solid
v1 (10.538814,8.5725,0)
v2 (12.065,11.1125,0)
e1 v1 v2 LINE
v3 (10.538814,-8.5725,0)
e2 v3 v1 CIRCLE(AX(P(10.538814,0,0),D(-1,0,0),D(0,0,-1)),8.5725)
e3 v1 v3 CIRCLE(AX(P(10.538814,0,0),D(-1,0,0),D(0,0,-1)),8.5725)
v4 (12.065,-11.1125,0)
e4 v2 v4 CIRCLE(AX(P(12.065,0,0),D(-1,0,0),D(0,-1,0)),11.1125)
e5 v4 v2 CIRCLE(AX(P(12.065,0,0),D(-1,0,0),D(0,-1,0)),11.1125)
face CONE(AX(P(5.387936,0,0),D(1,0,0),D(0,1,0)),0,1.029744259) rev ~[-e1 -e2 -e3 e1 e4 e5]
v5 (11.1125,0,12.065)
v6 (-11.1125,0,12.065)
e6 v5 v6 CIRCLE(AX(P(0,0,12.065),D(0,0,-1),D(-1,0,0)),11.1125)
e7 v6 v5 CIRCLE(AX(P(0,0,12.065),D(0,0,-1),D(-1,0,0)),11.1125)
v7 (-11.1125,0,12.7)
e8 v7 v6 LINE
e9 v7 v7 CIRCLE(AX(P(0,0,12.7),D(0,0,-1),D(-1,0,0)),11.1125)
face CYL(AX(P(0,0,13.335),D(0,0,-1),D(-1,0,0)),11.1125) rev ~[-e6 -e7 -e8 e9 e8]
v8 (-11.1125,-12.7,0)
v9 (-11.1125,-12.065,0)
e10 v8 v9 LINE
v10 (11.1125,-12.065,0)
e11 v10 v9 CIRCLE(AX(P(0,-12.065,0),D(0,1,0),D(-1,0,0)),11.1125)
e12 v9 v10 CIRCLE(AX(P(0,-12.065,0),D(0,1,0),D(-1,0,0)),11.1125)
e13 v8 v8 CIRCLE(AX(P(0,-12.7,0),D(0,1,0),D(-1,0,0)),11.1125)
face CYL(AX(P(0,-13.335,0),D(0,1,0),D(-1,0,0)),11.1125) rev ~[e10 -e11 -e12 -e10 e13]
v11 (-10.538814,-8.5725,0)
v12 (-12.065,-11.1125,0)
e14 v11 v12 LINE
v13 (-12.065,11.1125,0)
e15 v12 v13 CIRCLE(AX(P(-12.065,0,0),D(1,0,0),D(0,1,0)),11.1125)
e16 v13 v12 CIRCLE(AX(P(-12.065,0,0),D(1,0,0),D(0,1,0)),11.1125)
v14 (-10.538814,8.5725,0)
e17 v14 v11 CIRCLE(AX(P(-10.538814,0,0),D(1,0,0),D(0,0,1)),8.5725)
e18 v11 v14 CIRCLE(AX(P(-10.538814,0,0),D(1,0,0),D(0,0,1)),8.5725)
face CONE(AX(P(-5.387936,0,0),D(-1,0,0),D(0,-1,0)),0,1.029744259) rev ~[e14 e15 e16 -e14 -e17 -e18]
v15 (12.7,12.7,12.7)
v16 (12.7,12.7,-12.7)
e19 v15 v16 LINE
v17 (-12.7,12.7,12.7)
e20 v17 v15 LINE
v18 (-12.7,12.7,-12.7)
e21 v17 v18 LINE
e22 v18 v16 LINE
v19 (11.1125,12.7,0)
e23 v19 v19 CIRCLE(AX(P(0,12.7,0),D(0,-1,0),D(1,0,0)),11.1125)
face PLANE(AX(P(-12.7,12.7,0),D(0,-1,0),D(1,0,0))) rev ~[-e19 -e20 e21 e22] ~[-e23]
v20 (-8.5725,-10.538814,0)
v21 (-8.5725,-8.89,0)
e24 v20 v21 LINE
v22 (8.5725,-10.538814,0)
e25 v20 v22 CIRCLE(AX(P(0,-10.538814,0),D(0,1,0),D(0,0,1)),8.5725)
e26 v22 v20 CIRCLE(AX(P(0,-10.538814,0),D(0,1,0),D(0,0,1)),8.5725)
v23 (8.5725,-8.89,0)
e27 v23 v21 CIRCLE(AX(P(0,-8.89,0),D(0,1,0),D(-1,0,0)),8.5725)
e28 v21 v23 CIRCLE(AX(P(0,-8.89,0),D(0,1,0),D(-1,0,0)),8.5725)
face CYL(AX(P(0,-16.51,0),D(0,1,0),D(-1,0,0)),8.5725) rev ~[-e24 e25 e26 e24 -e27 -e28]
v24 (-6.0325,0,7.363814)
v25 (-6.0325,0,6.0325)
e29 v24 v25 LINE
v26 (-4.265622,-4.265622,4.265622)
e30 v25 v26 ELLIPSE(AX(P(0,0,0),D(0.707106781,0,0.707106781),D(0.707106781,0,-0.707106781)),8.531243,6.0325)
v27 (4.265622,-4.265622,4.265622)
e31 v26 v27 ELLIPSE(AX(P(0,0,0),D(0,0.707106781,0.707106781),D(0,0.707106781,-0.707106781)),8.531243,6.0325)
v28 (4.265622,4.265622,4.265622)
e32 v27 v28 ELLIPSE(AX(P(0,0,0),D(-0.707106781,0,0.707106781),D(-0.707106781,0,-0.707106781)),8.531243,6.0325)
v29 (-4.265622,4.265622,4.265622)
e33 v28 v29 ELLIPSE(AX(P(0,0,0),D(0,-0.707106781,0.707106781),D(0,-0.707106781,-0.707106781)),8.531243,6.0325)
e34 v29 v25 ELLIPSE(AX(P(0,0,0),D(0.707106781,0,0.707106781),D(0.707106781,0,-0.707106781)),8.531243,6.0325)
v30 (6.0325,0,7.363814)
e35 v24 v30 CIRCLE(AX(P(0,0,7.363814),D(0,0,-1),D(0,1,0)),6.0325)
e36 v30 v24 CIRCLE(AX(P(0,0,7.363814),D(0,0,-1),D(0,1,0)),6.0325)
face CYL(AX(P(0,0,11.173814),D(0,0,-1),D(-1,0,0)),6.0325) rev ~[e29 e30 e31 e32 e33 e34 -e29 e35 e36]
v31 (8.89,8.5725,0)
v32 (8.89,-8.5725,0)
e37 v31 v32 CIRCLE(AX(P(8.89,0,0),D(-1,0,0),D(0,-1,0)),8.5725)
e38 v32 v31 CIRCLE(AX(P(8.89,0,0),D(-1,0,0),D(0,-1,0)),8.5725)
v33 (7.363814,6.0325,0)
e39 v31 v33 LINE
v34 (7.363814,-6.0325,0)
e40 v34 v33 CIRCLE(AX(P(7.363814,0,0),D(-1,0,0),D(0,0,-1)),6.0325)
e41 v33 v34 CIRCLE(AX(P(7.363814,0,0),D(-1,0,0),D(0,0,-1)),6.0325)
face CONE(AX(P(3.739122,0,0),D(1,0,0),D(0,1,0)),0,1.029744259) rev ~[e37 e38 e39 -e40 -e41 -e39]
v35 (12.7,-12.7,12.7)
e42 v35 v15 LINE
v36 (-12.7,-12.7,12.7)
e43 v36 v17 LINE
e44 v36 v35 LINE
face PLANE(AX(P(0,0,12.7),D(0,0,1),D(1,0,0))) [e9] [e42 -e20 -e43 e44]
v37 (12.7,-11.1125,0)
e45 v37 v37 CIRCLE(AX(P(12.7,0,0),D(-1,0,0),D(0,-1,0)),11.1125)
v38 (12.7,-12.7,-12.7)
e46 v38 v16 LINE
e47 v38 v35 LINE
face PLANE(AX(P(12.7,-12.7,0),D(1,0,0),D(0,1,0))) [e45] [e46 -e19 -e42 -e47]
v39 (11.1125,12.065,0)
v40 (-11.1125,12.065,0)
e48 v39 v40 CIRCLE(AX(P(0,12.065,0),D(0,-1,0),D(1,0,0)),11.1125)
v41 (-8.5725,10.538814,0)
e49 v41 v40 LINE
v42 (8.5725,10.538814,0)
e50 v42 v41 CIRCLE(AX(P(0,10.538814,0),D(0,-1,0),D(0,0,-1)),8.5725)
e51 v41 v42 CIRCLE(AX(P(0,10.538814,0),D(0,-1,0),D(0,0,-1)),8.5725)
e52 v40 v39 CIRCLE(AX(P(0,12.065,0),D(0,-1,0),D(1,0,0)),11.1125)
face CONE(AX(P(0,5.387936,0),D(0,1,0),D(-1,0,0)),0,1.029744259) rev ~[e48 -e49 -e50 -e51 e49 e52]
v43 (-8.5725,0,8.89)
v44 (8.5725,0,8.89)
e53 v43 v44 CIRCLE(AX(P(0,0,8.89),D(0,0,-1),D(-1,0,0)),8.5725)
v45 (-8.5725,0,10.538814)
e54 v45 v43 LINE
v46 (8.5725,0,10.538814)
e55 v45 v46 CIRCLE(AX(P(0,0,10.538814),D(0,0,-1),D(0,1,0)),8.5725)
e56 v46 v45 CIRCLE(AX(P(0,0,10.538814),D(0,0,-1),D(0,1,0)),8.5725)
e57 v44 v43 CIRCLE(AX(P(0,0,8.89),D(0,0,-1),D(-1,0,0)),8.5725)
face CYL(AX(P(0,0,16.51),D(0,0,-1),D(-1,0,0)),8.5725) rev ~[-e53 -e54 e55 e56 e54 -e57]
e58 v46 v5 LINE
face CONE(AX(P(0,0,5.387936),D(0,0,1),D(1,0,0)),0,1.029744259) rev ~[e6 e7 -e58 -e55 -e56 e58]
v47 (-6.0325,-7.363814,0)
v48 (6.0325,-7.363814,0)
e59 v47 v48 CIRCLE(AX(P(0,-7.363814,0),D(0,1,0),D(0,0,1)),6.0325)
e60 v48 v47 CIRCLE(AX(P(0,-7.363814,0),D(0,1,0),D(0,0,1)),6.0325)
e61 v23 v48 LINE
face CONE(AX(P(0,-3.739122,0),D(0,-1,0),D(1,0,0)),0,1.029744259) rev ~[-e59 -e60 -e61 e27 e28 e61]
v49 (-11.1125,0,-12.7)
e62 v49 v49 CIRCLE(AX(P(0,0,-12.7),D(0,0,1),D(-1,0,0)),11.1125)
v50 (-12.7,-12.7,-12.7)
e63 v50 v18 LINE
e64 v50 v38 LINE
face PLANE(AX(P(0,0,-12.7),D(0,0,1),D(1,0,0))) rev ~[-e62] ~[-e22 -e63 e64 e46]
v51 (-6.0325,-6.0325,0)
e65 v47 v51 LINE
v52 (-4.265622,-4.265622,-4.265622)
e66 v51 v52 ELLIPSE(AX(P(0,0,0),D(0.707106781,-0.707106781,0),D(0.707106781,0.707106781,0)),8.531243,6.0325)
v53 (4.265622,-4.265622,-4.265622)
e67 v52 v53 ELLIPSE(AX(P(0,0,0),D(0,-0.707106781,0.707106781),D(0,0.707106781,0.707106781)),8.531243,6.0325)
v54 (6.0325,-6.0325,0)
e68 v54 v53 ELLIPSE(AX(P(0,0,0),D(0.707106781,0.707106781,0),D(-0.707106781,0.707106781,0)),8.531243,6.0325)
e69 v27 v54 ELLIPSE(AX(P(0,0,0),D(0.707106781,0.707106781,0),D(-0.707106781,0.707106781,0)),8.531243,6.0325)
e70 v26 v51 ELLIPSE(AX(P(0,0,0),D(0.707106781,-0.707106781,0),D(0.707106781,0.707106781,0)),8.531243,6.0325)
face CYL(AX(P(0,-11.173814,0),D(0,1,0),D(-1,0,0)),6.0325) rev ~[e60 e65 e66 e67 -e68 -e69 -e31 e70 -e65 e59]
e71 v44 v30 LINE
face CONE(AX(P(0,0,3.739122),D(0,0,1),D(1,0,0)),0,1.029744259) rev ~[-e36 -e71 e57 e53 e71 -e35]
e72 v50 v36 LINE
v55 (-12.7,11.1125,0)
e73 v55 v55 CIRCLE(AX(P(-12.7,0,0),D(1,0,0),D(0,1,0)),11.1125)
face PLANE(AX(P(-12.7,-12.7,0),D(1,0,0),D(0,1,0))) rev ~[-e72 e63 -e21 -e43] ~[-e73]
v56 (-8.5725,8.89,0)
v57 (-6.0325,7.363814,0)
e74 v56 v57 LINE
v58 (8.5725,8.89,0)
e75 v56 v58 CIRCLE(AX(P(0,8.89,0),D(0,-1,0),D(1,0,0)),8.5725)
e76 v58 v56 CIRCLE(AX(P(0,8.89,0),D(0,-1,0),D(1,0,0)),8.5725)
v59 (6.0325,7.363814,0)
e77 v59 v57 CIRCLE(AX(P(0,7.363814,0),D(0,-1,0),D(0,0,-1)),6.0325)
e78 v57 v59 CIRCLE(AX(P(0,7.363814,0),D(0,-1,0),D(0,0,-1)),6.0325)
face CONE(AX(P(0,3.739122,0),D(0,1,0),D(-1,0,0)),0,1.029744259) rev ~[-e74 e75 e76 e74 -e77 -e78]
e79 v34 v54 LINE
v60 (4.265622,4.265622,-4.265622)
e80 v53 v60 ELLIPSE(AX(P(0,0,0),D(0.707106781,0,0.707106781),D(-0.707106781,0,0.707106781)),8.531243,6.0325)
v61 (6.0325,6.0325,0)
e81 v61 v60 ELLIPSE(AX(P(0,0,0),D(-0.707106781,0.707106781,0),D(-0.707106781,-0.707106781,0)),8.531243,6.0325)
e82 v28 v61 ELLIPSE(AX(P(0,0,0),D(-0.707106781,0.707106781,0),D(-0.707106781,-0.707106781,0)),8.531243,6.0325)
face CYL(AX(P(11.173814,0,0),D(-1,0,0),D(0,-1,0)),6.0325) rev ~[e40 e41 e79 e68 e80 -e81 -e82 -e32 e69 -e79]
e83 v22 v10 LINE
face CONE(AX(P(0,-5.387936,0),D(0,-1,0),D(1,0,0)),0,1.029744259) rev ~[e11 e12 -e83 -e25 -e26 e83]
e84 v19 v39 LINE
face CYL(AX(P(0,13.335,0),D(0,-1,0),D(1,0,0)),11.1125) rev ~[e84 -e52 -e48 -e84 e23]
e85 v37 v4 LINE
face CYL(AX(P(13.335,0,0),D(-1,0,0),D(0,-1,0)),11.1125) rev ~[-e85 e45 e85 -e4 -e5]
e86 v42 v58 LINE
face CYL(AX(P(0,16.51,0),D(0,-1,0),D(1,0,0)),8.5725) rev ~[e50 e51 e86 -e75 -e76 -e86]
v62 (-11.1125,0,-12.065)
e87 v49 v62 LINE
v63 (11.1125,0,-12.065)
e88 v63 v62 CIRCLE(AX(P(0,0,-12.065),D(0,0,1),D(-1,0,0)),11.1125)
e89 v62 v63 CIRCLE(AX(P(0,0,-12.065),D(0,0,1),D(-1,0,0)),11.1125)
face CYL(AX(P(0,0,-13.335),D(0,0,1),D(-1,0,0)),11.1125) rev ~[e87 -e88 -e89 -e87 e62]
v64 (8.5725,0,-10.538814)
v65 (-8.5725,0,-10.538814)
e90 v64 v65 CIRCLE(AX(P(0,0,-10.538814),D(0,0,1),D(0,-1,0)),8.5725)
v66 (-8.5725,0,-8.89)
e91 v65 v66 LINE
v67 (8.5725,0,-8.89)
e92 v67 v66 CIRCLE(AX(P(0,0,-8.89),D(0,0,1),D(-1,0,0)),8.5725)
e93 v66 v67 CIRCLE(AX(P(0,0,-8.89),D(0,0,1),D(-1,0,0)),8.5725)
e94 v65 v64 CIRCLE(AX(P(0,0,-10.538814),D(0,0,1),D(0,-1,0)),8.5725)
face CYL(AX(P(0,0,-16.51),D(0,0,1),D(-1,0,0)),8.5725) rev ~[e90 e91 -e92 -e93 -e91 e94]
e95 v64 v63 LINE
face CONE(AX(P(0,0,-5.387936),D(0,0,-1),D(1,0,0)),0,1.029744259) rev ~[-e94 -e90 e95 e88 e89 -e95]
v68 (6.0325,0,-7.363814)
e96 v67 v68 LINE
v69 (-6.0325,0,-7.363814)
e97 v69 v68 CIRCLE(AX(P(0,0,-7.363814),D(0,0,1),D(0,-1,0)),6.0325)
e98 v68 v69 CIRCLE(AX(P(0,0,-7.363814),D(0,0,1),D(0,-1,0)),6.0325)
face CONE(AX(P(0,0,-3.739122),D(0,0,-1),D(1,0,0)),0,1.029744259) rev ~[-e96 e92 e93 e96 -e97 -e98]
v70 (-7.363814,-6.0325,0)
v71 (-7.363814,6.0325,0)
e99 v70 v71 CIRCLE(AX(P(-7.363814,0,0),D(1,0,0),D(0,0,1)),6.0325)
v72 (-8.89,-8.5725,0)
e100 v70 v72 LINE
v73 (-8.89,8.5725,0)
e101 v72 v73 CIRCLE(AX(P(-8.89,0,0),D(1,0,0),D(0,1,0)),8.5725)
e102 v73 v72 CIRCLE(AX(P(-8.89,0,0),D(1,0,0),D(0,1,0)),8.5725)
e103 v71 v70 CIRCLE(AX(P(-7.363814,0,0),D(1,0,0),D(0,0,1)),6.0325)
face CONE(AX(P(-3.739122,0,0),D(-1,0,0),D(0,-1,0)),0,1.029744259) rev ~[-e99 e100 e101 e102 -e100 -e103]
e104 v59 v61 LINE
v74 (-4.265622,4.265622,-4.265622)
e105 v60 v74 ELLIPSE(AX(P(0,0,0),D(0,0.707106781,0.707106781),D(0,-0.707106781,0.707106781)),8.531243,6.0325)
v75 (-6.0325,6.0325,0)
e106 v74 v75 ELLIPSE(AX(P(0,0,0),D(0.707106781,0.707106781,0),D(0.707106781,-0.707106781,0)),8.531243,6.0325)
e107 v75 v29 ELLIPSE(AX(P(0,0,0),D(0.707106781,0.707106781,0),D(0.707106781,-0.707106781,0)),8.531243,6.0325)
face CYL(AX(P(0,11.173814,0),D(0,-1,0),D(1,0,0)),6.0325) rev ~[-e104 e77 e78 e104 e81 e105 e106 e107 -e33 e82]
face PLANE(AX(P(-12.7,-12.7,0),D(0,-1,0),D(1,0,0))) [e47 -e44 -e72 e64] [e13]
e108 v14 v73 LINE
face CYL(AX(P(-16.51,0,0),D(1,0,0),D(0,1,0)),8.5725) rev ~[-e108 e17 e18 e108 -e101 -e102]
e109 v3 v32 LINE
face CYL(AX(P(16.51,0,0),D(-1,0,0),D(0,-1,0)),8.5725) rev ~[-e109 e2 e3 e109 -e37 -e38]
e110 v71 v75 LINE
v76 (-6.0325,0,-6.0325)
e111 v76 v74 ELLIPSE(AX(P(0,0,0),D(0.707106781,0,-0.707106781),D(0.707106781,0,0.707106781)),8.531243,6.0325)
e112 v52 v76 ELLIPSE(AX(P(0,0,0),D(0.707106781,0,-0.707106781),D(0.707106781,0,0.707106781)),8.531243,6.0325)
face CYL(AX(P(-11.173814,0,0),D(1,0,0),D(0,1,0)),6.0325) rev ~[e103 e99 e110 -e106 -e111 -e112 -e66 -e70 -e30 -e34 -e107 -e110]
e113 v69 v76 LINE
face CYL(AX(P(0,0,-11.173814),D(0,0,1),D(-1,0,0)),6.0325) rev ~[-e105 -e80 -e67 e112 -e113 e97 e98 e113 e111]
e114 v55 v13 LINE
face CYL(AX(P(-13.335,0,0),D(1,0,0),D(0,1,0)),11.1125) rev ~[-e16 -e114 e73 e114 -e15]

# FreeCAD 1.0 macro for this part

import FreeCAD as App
import Part
import Sketcher

V = App.Vector
Q = App.Units.Quantity

doc = App.newDocument("Part")
body = doc.addObject("PartDesign::Body", "Body")

sketch1 = body.newObject("Sketcher::SketchObject", "Sketch")
sketch1.AttachmentSupport = (doc.getObject("XY_Plane"), [""])
sketch1.MapMode = "FlatFace"
sketch1.addGeometry([
    Part.LineSegment(V(-13, 13, 0), V(-13, -13, 0)),
    Part.LineSegment(V(-13, -13, 0), V(13, -13, 0)),
    Part.LineSegment(V(13, -13, 0), V(13, 13, 0)),
    Part.LineSegment(V(13, 13, 0), V(-13, 13, 0)),
], False)
sketch1.addConstraint([
    Sketcher.Constraint("Coincident", 0, 2, 1, 1),
    Sketcher.Constraint("Coincident", 1, 2, 2, 1),
    Sketcher.Constraint("Coincident", 2, 2, 3, 1),
    Sketcher.Constraint("Coincident", 3, 2, 0, 1),
    Sketcher.Constraint("Vertical", 0),
    Sketcher.Constraint("Horizontal", 1),
    Sketcher.Constraint("Vertical", 2),
    Sketcher.Constraint("Horizontal", 3),
    Sketcher.Constraint("Symmetric", 0, 2, 2, 2, -1, 1),
    Sketcher.Constraint("Equal", 3, 0),
    Sketcher.Constraint("DistanceX", 1, 1, 1, 2, Q("1 in")),
])
pad1 = body.newObject("PartDesign::Pad", "Pad")
pad1.Profile = sketch1
pad1.Length = Q("1 in")
pad1.Midplane = True

sketch2 = body.newObject("Sketcher::SketchObject", "Sketch001")
sketch2.AttachmentSupport = (doc.getObject("XY_Plane"), [""])
sketch2.MapMode = "FlatFace"
sketch2.AttachmentOffset = App.Placement(V(0, 0, 0.5 * 25.4), App.Rotation())
sketch2.addGeometry(Part.Circle(V(0, 0, 0), V(0, 0, 1), 1.6), False)
sketch2.addConstraint([
    Sketcher.Constraint("Coincident", 0, 3, -1, 1),
    Sketcher.Constraint("Diameter", 0, Q("0.125 in")),
])
doc.recompute()
hole = body.newObject("PartDesign::Hole", "Hole")
hole.Profile = sketch2
hole.ThreadType = "None"
hole.Diameter = Q("0.125 in")
hole.DepthType = "ThroughAll"

sketch3 = body.newObject("Sketcher::SketchObject", "Sketch002")
sketch3.AttachmentSupport = (doc.getObject("YZ_Plane"), [""])
sketch3.MapMode = "FlatFace"
sketch3.AttachmentOffset = App.Placement(V(0, 0, -0.5 * 25.4), App.Rotation())
sketch3.addGeometry(Part.Circle(V(0, 0, 0), V(0, 0, 1), 1.6), False)
sketch3.addConstraint([
    Sketcher.Constraint("Coincident", 0, 3, -1, 1),
    Sketcher.Constraint("Diameter", 0, Q("0.125 in")),
])
doc.recompute()
hole2 = body.newObject("PartDesign::Hole", "Hole001")
hole2.Profile = sketch3
hole2.ThreadType = "None"
hole2.Diameter = Q("0.125 in")
hole2.DepthType = "ThroughAll"
hole2.Reversed = True

sketch4 = body.newObject("Sketcher::SketchObject", "Sketch003")
sketch4.AttachmentSupport = (doc.getObject("XZ_Plane"), [""])
sketch4.MapMode = "FlatFace"
sketch4.AttachmentOffset = App.Placement(V(0, 0, -0.5 * 25.4), App.Rotation())
sketch4.addGeometry(Part.Circle(V(0, 0, 0), V(0, 0, 1), 1.6), False)
sketch4.addConstraint([
    Sketcher.Constraint("Coincident", 0, 3, -1, 1),
    Sketcher.Constraint("Diameter", 0, Q("0.125 in")),
])
doc.recompute()
hole3 = body.newObject("PartDesign::Hole", "Hole002")
hole3.Profile = sketch4
hole3.ThreadType = "None"
hole3.Diameter = Q("0.125 in")
hole3.DepthType = "ThroughAll"
hole3.Reversed = True

sketch5 = body.newObject("Sketcher::SketchObject", "Sketch004")
sketch5.AttachmentSupport = (doc.getObject("XY_Plane"), [""])
sketch5.MapMode = "FlatFace"
sketch5.AttachmentOffset = App.Placement(V(0, 0, -0.5 * 25.4), App.Rotation())
sketch5.addGeometry(Part.Circle(V(0, 0, 0), V(0, 0, 1), 9), False)
sketch5.addConstraint([
    Sketcher.Constraint("Coincident", 0, 3, -1, 1),
    Sketcher.Constraint("Diameter", 0, Q("0.675 in")),
])
doc.recompute()
hole4 = body.newObject("PartDesign::Hole", "Hole003")
hole4.Profile = sketch5
hole4.ThreadType = "None"
hole4.Diameter = Q("0.675 in")
hole4.DepthType = "Dimension"
hole4.Depth = Q("0.15 in")
hole4.DrillPoint = "Angled"
hole4.DrillPointAngle = 118
hole4.Reversed = True

sketch6 = body.newObject("Sketcher::SketchObject", "Sketch005")
sketch6.AttachmentSupport = (doc.getObject("XZ_Plane"), [""])
sketch6.MapMode = "FlatFace"
sketch6.AttachmentOffset = App.Placement(V(0, 0, -0.5 * 25.4), App.Rotation())
sketch6.addGeometry(Part.Circle(V(0, 0, 0), V(0, 0, 1), 9), False)
sketch6.addConstraint([
    Sketcher.Constraint("Coincident", 0, 3, -1, 1),
    Sketcher.Constraint("Diameter", 0, Q("0.675 in")),
])
doc.recompute()
hole5 = body.newObject("PartDesign::Hole", "Hole004")
hole5.Profile = sketch6
hole5.ThreadType = "None"
hole5.Diameter = Q("0.675 in")
hole5.DepthType = "Dimension"
hole5.Depth = Q("0.15 in")
hole5.DrillPoint = "Angled"
hole5.DrillPointAngle = 118
hole5.Reversed = True

sketch7 = body.newObject("Sketcher::SketchObject", "Sketch006")
sketch7.AttachmentSupport = (doc.getObject("XZ_Plane"), [""])
sketch7.MapMode = "FlatFace"
sketch7.AttachmentOffset = App.Placement(V(0, 0, 0.5 * 25.4), App.Rotation())
sketch7.addGeometry(Part.Circle(V(0, 0, 0), V(0, 0, 1), 9), False)
sketch7.addConstraint([
    Sketcher.Constraint("Coincident", 0, 3, -1, 1),
    Sketcher.Constraint("Diameter", 0, Q("0.675 in")),
])
doc.recompute()
hole6 = body.newObject("PartDesign::Hole", "Hole005")
hole6.Profile = sketch7
hole6.ThreadType = "None"
hole6.Diameter = Q("0.675 in")
hole6.DepthType = "Dimension"
hole6.Depth = Q("0.15 in")
hole6.DrillPoint = "Angled"
hole6.DrillPointAngle = 118

sketch8 = body.newObject("Sketcher::SketchObject", "Sketch007")
sketch8.AttachmentSupport = (doc.getObject("YZ_Plane"), [""])
sketch8.MapMode = "FlatFace"
sketch8.AttachmentOffset = App.Placement(V(0, 0, -0.5 * 25.4), App.Rotation())
sketch8.addGeometry(Part.Circle(V(0, 0, 0), V(0, 0, 1), 9), False)
sketch8.addConstraint([
    Sketcher.Constraint("Coincident", 0, 3, -1, 1),
    Sketcher.Constraint("Diameter", 0, Q("0.675 in")),
])
doc.recompute()
hole7 = body.newObject("PartDesign::Hole", "Hole006")
hole7.Profile = sketch8
hole7.ThreadType = "None"
hole7.Diameter = Q("0.675 in")
hole7.DepthType = "Dimension"
hole7.Depth = Q("0.15 in")
hole7.DrillPoint = "Angled"
hole7.DrillPointAngle = 118
hole7.Reversed = True

sketch9 = body.newObject("Sketcher::SketchObject", "Sketch008")
sketch9.AttachmentSupport = (doc.getObject("YZ_Plane"), [""])
sketch9.MapMode = "FlatFace"
sketch9.AttachmentOffset = App.Placement(V(0, 0, 0.5 * 25.4), App.Rotation())
sketch9.addGeometry(Part.Circle(V(0, 0, 0), V(0, 0, 1), 9), False)
sketch9.addConstraint([
    Sketcher.Constraint("Coincident", 0, 3, -1, 1),
    Sketcher.Constraint("Diameter", 0, Q("0.675 in")),
])
doc.recompute()
hole8 = body.newObject("PartDesign::Hole", "Hole007")
hole8.Profile = sketch9
hole8.ThreadType = "None"
hole8.Diameter = Q("0.675 in")
hole8.DepthType = "Dimension"
hole8.Depth = Q("0.15 in")
hole8.DrillPoint = "Angled"
hole8.DrillPointAngle = 118

sketch10 = body.newObject("Sketcher::SketchObject", "Sketch009")
sketch10.AttachmentSupport = (doc.getObject("XY_Plane"), [""])
sketch10.MapMode = "FlatFace"
sketch10.AttachmentOffset = App.Placement(V(0, 0, 0.5 * 25.4), App.Rotation())
sketch10.addGeometry(Part.Circle(V(0, 0, 0), V(0, 0, 1), 9), False)
sketch10.addConstraint([
    Sketcher.Constraint("Coincident", 0, 3, -1, 1),
    Sketcher.Constraint("Diameter", 0, Q("0.675 in")),
])
doc.recompute()
hole9 = body.newObject("PartDesign::Hole", "Hole008")
hole9.Profile = sketch10
hole9.ThreadType = "None"
hole9.Diameter = Q("0.675 in")
hole9.DepthType = "Dimension"
hole9.Depth = Q("0.15 in")
hole9.DrillPoint = "Angled"
hole9.DrillPointAngle = 118

sketch11 = body.newObject("Sketcher::SketchObject", "Sketch010")
sketch11.AttachmentSupport = (doc.getObject("YZ_Plane"), [""])
sketch11.MapMode = "FlatFace"
sketch11.AttachmentOffset = App.Placement(V(0, 0, 0.5 * 25.4), App.Rotation())
sketch11.addGeometry(Part.Circle(V(0, 0, 0), V(0, 0, 1), 11), False)
sketch11.addConstraint([
    Sketcher.Constraint("Coincident", 0, 3, -1, 1),
    Sketcher.Constraint("Diameter", 0, Q("0.875 in")),
])
doc.recompute()
hole10 = body.newObject("PartDesign::Hole", "Hole009")
hole10.Profile = sketch11
hole10.ThreadType = "None"
hole10.Diameter = Q("0.875 in")
hole10.DepthType = "Dimension"
hole10.Depth = Q("0.025 in")
hole10.DrillPoint = "Angled"
hole10.DrillPointAngle = 118

sketch12 = body.newObject("Sketcher::SketchObject", "Sketch011")
sketch12.AttachmentSupport = (doc.getObject("XY_Plane"), [""])
sketch12.MapMode = "FlatFace"
sketch12.AttachmentOffset = App.Placement(V(0, 0, 0.5 * 25.4), App.Rotation())
sketch12.addGeometry(Part.Circle(V(0, 0, 0), V(0, 0, 1), 11), False)
sketch12.addConstraint([
    Sketcher.Constraint("Coincident", 0, 3, -1, 1),
    Sketcher.Constraint("Diameter", 0, Q("0.875 in")),
])
doc.recompute()
hole11 = body.newObject("PartDesign::Hole", "Hole010")
hole11.Profile = sketch12
hole11.ThreadType = "None"
hole11.Diameter = Q("0.875 in")
hole11.DepthType = "Dimension"
hole11.Depth = Q("0.025 in")
hole11.DrillPoint = "Angled"
hole11.DrillPointAngle = 118

sketch13 = body.newObject("Sketcher::SketchObject", "Sketch012")
sketch13.AttachmentSupport = (doc.getObject("XZ_Plane"), [""])
sketch13.MapMode = "FlatFace"
sketch13.AttachmentOffset = App.Placement(V(0, 0, 0.5 * 25.4), App.Rotation())
sketch13.addGeometry(Part.Circle(V(0, 0, 0), V(0, 0, 1), 11), False)
sketch13.addConstraint([
    Sketcher.Constraint("Coincident", 0, 3, -1, 1),
    Sketcher.Constraint("Diameter", 0, Q("0.875 in")),
])
doc.recompute()
hole12 = body.newObject("PartDesign::Hole", "Hole011")
hole12.Profile = sketch13
hole12.ThreadType = "None"
hole12.Diameter = Q("0.875 in")
hole12.DepthType = "Dimension"
hole12.Depth = Q("0.025 in")
hole12.DrillPoint = "Angled"
hole12.DrillPointAngle = 118

sketch14 = body.newObject("Sketcher::SketchObject", "Sketch013")
sketch14.AttachmentSupport = (doc.getObject("XY_Plane"), [""])
sketch14.MapMode = "FlatFace"
sketch14.AttachmentOffset = App.Placement(V(0, 0, -0.5 * 25.4), App.Rotation())
sketch14.addGeometry(Part.Circle(V(0, 0, 0), V(0, 0, 1), 11), False)
sketch14.addConstraint([
    Sketcher.Constraint("Coincident", 0, 3, -1, 1),
    Sketcher.Constraint("Diameter", 0, Q("0.875 in")),
])
doc.recompute()
hole13 = body.newObject("PartDesign::Hole", "Hole012")
hole13.Profile = sketch14
hole13.ThreadType = "None"
hole13.Diameter = Q("0.875 in")
hole13.DepthType = "Dimension"
hole13.Depth = Q("0.025 in")
hole13.DrillPoint = "Angled"
hole13.DrillPointAngle = 118
hole13.Reversed = True

sketch15 = body.newObject("Sketcher::SketchObject", "Sketch014")
sketch15.AttachmentSupport = (doc.getObject("YZ_Plane"), [""])
sketch15.MapMode = "FlatFace"
sketch15.AttachmentOffset = App.Placement(V(0, 0, -0.5 * 25.4), App.Rotation())
sketch15.addGeometry(Part.Circle(V(0, 0, 0), V(0, 0, 1), 11), False)
sketch15.addConstraint([
    Sketcher.Constraint("Coincident", 0, 3, -1, 1),
    Sketcher.Constraint("Diameter", 0, Q("0.875 in")),
])
doc.recompute()
hole14 = body.newObject("PartDesign::Hole", "Hole013")
hole14.Profile = sketch15
hole14.ThreadType = "None"
hole14.Diameter = Q("0.875 in")
hole14.DepthType = "Dimension"
hole14.Depth = Q("0.025 in")
hole14.DrillPoint = "Angled"
hole14.DrillPointAngle = 118
hole14.Reversed = True

sketch16 = body.newObject("Sketcher::SketchObject", "Sketch015")
sketch16.AttachmentSupport = (doc.getObject("XZ_Plane"), [""])
sketch16.MapMode = "FlatFace"
sketch16.AttachmentOffset = App.Placement(V(0, 0, -0.5 * 25.4), App.Rotation())
sketch16.addGeometry(Part.Circle(V(0, 0, 0), V(0, 0, 1), 11), False)
sketch16.addConstraint([
    Sketcher.Constraint("Coincident", 0, 3, -1, 1),
    Sketcher.Constraint("Diameter", 0, Q("0.875 in")),
])
doc.recompute()
hole15 = body.newObject("PartDesign::Hole", "Hole014")
hole15.Profile = sketch16
hole15.ThreadType = "None"
hole15.Diameter = Q("0.875 in")
hole15.DepthType = "Dimension"
hole15.Depth = Q("0.025 in")
hole15.DrillPoint = "Angled"
hole15.DrillPointAngle = 118
hole15.Reversed = True

sketch17 = body.newObject("Sketcher::SketchObject", "Sketch016")
sketch17.AttachmentSupport = (doc.getObject("YZ_Plane"), [""])
sketch17.MapMode = "FlatFace"
sketch17.AttachmentOffset = App.Placement(V(0, 0, -0.5 * 25.4), App.Rotation())
sketch17.addGeometry(Part.Circle(V(0, 0, 0), V(0, 0, 1), 6), False)
sketch17.addConstraint([
    Sketcher.Constraint("Coincident", 0, 3, -1, 1),
    Sketcher.Constraint("Diameter", 0, Q("0.475 in")),
])
doc.recompute()
hole16 = body.newObject("PartDesign::Hole", "Hole015")
hole16.Profile = sketch17
hole16.ThreadType = "None"
hole16.Diameter = Q("0.475 in")
hole16.DepthType = "Dimension"
hole16.Depth = 5.336186
hole16.DrillPoint = "Flat"
hole16.Reversed = True

sketch18 = body.newObject("Sketcher::SketchObject", "Sketch017")
sketch18.AttachmentSupport = (doc.getObject("YZ_Plane"), [""])
sketch18.MapMode = "FlatFace"
sketch18.AttachmentOffset = App.Placement(V(0, 0, -7.363814), App.Rotation())
sketch18.addGeometry(Part.Circle(V(0, 0, 0), V(0, 0, 1), 6), False)
sketch18.addConstraint([
    Sketcher.Constraint("Coincident", 0, 3, -1, 1),
    Sketcher.Constraint("Diameter", 0, Q("0.475 in")),
])
doc.recompute()
hole17 = body.newObject("PartDesign::Hole", "Hole016")
hole17.Profile = sketch18
hole17.ThreadType = "None"
hole17.Diameter = Q("0.475 in")
hole17.DepthType = "Dimension"
hole17.Depth = Q("0.15 in")
hole17.DrillPoint = "Angled"
hole17.DrillPointAngle = 118
hole17.Reversed = True

sketch19 = body.newObject("Sketcher::SketchObject", "Sketch018")
sketch19.AttachmentSupport = (doc.getObject("XY_Plane"), [""])
sketch19.MapMode = "FlatFace"
sketch19.AttachmentOffset = App.Placement(V(0, 0, -0.5 * 25.4), App.Rotation())
sketch19.addGeometry(Part.Circle(V(0, 0, 0), V(0, 0, 1), 6), False)
sketch19.addConstraint([
    Sketcher.Constraint("Coincident", 0, 3, -1, 1),
    Sketcher.Constraint("Diameter", 0, Q("0.475 in")),
])
doc.recompute()
hole18 = body.newObject("PartDesign::Hole", "Hole017")
hole18.Profile = sketch19
hole18.ThreadType = "None"
hole18.Diameter = Q("0.475 in")
hole18.DepthType = "Dimension"
hole18.Depth = 5.336186
hole18.DrillPoint = "Flat"
hole18.Reversed = True

sketch20 = body.newObject("Sketcher::SketchObject", "Sketch019")
sketch20.AttachmentSupport = (doc.getObject("XY_Plane"), [""])
sketch20.MapMode = "FlatFace"
sketch20.AttachmentOffset = App.Placement(V(0, 0, -7.363814), App.Rotation())
sketch20.addGeometry(Part.Circle(V(0, 0, 0), V(0, 0, 1), 6), False)
sketch20.addConstraint([
    Sketcher.Constraint("Coincident", 0, 3, -1, 1),
    Sketcher.Constraint("Diameter", 0, Q("0.475 in")),
])
doc.recompute()
hole19 = body.newObject("PartDesign::Hole", "Hole018")
hole19.Profile = sketch20
hole19.ThreadType = "None"
hole19.Diameter = Q("0.475 in")
hole19.DepthType = "Dimension"
hole19.Depth = Q("0.15 in")
hole19.DrillPoint = "Angled"
hole19.DrillPointAngle = 118
hole19.Reversed = True

sketch21 = body.newObject("Sketcher::SketchObject", "Sketch020")
sketch21.AttachmentSupport = (doc.getObject("XZ_Plane"), [""])
sketch21.MapMode = "FlatFace"
sketch21.AttachmentOffset = App.Placement(V(0, 0, 0.5 * 25.4), App.Rotation())
sketch21.addGeometry(Part.Circle(V(0, 0, 0), V(0, 0, 1), 6), False)
sketch21.addConstraint([
    Sketcher.Constraint("Coincident", 0, 3, -1, 1),
    Sketcher.Constraint("Diameter", 0, Q("0.475 in")),
])
doc.recompute()
hole20 = body.newObject("PartDesign::Hole", "Hole019")
hole20.Profile = sketch21
hole20.ThreadType = "None"
hole20.Diameter = Q("0.475 in")
hole20.DepthType = "Dimension"
hole20.Depth = 5.336186
hole20.DrillPoint = "Flat"

sketch22 = body.newObject("Sketcher::SketchObject", "Sketch021")
sketch22.AttachmentSupport = (doc.getObject("XZ_Plane"), [""])
sketch22.MapMode = "FlatFace"
sketch22.AttachmentOffset = App.Placement(V(0, 0, 7.363814), App.Rotation())
sketch22.addGeometry(Part.Circle(V(0, 0, 0), V(0, 0, 1), 6), False)
sketch22.addConstraint([
    Sketcher.Constraint("Coincident", 0, 3, -1, 1),
    Sketcher.Constraint("Diameter", 0, Q("0.475 in")),
])
doc.recompute()
hole21 = body.newObject("PartDesign::Hole", "Hole020")
hole21.Profile = sketch22
hole21.ThreadType = "None"
hole21.Diameter = Q("0.475 in")
hole21.DepthType = "Dimension"
hole21.Depth = Q("0.15 in")
hole21.DrillPoint = "Angled"
hole21.DrillPointAngle = 118

sketch23 = body.newObject("Sketcher::SketchObject", "Sketch022")
sketch23.AttachmentSupport = (doc.getObject("YZ_Plane"), [""])
sketch23.MapMode = "FlatFace"
sketch23.AttachmentOffset = App.Placement(V(0, 0, 0.5 * 25.4), App.Rotation())
sketch23.addGeometry(Part.Circle(V(0, 0, 0), V(0, 0, 1), 6), False)
sketch23.addConstraint([
    Sketcher.Constraint("Coincident", 0, 3, -1, 1),
    Sketcher.Constraint("Diameter", 0, Q("0.475 in")),
])
doc.recompute()
hole22 = body.newObject("PartDesign::Hole", "Hole021")
hole22.Profile = sketch23
hole22.ThreadType = "None"
hole22.Diameter = Q("0.475 in")
hole22.DepthType = "Dimension"
hole22.Depth = 5.336186
hole22.DrillPoint = "Flat"

sketch24 = body.newObject("Sketcher::SketchObject", "Sketch023")
sketch24.AttachmentSupport = (doc.getObject("YZ_Plane"), [""])
sketch24.MapMode = "FlatFace"
sketch24.AttachmentOffset = App.Placement(V(0, 0, 7.363814), App.Rotation())
sketch24.addGeometry(Part.Circle(V(0, 0, 0), V(0, 0, 1), 6), False)
sketch24.addConstraint([
    Sketcher.Constraint("Coincident", 0, 3, -1, 1),
    Sketcher.Constraint("Diameter", 0, Q("0.475 in")),
])
doc.recompute()
hole23 = body.newObject("PartDesign::Hole", "Hole022")
hole23.Profile = sketch24
hole23.ThreadType = "None"
hole23.Diameter = Q("0.475 in")
hole23.DepthType = "Dimension"
hole23.Depth = Q("0.15 in")
hole23.DrillPoint = "Angled"
hole23.DrillPointAngle = 118

sketch25 = body.newObject("Sketcher::SketchObject", "Sketch024")
sketch25.AttachmentSupport = (doc.getObject("XZ_Plane"), [""])
sketch25.MapMode = "FlatFace"
sketch25.AttachmentOffset = App.Placement(V(0, 0, -0.5 * 25.4), App.Rotation())
sketch25.addGeometry(Part.Circle(V(0, 0, 0), V(0, 0, 1), 6), False)
sketch25.addConstraint([
    Sketcher.Constraint("Coincident", 0, 3, -1, 1),
    Sketcher.Constraint("Diameter", 0, Q("0.475 in")),
])
doc.recompute()
hole24 = body.newObject("PartDesign::Hole", "Hole023")
hole24.Profile = sketch25
hole24.ThreadType = "None"
hole24.Diameter = Q("0.475 in")
hole24.DepthType = "Dimension"
hole24.Depth = 5.336186
hole24.DrillPoint = "Flat"
hole24.Reversed = True

sketch26 = body.newObject("Sketcher::SketchObject", "Sketch025")
sketch26.AttachmentSupport = (doc.getObject("XZ_Plane"), [""])
sketch26.MapMode = "FlatFace"
sketch26.AttachmentOffset = App.Placement(V(0, 0, -7.363814), App.Rotation())
sketch26.addGeometry(Part.Circle(V(0, 0, 0), V(0, 0, 1), 6), False)
sketch26.addConstraint([
    Sketcher.Constraint("Coincident", 0, 3, -1, 1),
    Sketcher.Constraint("Diameter", 0, Q("0.475 in")),
])
doc.recompute()
hole25 = body.newObject("PartDesign::Hole", "Hole024")
hole25.Profile = sketch26
hole25.ThreadType = "None"
hole25.Diameter = Q("0.475 in")
hole25.DepthType = "Dimension"
hole25.Depth = Q("0.15 in")
hole25.DrillPoint = "Angled"
hole25.DrillPointAngle = 118
hole25.Reversed = True

sketch27 = body.newObject("Sketcher::SketchObject", "Sketch026")
sketch27.AttachmentSupport = (doc.getObject("XY_Plane"), [""])
sketch27.MapMode = "FlatFace"
sketch27.AttachmentOffset = App.Placement(V(0, 0, 0.5 * 25.4), App.Rotation())
sketch27.addGeometry(Part.Circle(V(0, 0, 0), V(0, 0, 1), 6), False)
sketch27.addConstraint([
    Sketcher.Constraint("Coincident", 0, 3, -1, 1),
    Sketcher.Constraint("Diameter", 0, Q("0.475 in")),
])
doc.recompute()
hole26 = body.newObject("PartDesign::Hole", "Hole025")
hole26.Profile = sketch27
hole26.ThreadType = "None"
hole26.Diameter = Q("0.475 in")
hole26.DepthType = "Dimension"
hole26.Depth = 5.336186
hole26.DrillPoint = "Flat"

sketch28 = body.newObject("Sketcher::SketchObject", "Sketch027")
sketch28.AttachmentSupport = (doc.getObject("XY_Plane"), [""])
sketch28.MapMode = "FlatFace"
sketch28.AttachmentOffset = App.Placement(V(0, 0, 7.363814), App.Rotation())
sketch28.addGeometry(Part.Circle(V(0, 0, 0), V(0, 0, 1), 6), False)
sketch28.addConstraint([
    Sketcher.Constraint("Coincident", 0, 3, -1, 1),
    Sketcher.Constraint("Diameter", 0, Q("0.475 in")),
])
doc.recompute()
hole27 = body.newObject("PartDesign::Hole", "Hole026")
hole27.Profile = sketch28
hole27.ThreadType = "None"
hole27.Diameter = Q("0.475 in")
hole27.DepthType = "Dimension"
hole27.Depth = Q("0.15 in")
hole27.DrillPoint = "Angled"
hole27.DrillPointAngle = 118

doc.recompute()
